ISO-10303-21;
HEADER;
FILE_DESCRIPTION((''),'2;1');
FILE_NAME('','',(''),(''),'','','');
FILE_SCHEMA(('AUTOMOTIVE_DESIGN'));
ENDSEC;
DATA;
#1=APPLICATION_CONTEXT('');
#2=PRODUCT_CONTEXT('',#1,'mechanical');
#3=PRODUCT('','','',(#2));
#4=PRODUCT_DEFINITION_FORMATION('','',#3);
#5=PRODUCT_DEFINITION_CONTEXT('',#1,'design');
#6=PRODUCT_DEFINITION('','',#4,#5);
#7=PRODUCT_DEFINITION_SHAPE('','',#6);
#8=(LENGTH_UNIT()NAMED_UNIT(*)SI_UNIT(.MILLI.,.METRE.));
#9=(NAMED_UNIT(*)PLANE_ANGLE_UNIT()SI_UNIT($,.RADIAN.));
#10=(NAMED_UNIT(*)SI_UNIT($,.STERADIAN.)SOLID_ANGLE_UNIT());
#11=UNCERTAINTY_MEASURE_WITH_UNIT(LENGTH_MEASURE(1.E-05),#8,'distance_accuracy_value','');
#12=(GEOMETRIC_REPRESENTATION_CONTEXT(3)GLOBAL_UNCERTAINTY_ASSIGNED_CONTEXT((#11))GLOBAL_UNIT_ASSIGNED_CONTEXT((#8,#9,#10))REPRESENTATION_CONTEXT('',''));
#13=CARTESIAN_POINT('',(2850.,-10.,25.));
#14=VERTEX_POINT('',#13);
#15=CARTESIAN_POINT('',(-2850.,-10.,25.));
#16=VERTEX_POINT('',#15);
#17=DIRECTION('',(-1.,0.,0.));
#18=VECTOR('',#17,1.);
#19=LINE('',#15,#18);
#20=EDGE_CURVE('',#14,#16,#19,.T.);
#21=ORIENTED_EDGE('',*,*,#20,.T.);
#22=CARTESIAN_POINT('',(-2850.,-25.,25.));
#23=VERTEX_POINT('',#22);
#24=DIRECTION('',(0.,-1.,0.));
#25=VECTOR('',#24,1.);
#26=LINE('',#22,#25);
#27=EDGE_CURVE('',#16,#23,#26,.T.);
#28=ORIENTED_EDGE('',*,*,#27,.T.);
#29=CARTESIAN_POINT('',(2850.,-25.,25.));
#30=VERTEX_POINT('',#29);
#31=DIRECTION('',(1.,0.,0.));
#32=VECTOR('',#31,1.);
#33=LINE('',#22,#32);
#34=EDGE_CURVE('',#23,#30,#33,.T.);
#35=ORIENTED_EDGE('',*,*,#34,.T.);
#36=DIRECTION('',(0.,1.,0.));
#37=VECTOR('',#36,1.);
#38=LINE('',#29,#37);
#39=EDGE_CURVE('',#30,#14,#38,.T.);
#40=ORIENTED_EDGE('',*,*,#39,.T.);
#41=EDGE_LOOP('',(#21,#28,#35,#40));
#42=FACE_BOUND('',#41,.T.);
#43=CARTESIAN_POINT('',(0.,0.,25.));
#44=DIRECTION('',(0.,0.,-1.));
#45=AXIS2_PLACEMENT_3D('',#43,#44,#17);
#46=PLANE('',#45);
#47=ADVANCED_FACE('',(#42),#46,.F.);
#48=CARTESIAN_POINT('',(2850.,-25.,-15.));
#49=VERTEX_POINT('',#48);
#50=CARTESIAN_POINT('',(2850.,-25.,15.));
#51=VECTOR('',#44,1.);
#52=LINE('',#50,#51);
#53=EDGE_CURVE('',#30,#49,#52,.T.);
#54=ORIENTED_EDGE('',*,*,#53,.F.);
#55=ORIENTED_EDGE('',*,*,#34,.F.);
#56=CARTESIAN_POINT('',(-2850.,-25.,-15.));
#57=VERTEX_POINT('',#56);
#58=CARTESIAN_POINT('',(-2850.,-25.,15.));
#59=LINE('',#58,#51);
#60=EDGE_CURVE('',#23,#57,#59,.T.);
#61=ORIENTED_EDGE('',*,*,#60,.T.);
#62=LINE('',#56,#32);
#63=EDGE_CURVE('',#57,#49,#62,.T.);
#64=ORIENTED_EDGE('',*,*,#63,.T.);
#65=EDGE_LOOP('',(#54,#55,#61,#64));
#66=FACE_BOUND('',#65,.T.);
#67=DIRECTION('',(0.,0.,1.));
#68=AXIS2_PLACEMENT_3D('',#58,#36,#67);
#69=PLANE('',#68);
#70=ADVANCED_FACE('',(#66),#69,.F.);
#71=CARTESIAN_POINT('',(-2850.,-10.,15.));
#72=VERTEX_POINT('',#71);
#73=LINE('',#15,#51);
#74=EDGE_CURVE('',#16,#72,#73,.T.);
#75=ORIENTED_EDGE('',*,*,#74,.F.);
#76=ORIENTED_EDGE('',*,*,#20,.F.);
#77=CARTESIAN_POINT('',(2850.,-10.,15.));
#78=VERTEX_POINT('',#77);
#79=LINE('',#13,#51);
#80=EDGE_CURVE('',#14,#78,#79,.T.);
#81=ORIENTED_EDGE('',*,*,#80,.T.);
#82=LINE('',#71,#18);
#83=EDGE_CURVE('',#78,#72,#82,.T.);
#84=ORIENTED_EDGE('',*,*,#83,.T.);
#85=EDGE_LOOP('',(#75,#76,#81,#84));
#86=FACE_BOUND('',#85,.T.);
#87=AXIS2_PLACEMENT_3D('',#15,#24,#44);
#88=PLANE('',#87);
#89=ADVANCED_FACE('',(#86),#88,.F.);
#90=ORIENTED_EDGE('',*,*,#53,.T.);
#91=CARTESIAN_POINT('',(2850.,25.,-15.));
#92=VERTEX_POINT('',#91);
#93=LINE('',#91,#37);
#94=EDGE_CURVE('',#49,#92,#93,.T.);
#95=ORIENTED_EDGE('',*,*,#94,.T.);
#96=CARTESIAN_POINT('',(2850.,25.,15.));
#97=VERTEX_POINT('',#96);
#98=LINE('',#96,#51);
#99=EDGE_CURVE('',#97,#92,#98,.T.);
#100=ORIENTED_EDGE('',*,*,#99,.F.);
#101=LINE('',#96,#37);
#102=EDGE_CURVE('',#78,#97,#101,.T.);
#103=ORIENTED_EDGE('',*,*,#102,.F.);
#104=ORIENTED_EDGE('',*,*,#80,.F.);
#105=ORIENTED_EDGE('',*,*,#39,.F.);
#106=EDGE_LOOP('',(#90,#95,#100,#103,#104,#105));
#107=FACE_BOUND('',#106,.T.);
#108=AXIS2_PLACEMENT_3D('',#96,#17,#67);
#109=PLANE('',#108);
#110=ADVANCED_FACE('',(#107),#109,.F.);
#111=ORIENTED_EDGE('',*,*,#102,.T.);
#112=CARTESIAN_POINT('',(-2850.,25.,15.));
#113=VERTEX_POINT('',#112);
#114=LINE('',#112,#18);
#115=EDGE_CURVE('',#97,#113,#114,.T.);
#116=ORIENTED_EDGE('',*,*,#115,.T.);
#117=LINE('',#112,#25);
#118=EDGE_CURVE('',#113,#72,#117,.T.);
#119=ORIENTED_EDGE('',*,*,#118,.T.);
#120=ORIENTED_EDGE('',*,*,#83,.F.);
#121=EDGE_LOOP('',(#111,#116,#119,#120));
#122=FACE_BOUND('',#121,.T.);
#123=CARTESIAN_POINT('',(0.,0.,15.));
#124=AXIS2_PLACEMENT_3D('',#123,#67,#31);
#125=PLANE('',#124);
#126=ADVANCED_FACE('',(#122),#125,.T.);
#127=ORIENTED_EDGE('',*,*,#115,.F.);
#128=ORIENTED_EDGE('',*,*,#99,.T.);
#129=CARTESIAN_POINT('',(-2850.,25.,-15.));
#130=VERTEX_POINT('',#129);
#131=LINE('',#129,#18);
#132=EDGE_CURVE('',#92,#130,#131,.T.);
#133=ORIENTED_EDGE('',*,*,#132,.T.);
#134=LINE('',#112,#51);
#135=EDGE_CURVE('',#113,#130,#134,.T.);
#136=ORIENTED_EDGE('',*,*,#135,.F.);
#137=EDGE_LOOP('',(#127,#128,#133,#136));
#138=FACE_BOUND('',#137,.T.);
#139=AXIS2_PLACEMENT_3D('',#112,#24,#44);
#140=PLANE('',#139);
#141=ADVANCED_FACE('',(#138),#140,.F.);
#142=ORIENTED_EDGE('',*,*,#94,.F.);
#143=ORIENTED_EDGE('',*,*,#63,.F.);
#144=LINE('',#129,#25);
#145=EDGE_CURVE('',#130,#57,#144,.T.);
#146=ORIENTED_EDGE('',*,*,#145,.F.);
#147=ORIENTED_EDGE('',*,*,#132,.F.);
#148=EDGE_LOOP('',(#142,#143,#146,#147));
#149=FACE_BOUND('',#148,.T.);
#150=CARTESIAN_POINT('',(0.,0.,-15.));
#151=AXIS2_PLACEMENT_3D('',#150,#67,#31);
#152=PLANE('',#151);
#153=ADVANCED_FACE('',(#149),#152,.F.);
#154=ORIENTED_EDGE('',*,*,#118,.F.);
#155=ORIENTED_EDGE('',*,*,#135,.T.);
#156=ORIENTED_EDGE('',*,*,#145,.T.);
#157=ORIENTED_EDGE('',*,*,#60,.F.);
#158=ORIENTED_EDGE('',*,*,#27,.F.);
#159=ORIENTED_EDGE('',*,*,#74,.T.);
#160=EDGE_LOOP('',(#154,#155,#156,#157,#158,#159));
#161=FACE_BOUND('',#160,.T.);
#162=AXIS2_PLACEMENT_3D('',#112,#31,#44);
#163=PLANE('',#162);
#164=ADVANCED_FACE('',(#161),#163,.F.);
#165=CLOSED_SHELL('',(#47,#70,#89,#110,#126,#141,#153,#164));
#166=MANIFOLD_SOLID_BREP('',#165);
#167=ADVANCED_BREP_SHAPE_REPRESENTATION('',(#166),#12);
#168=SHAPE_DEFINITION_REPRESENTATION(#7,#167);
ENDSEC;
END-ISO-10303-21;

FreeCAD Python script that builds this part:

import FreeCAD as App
import Part
import Sketcher
from FreeCAD import Vector
Q = App.Units.Quantity

doc = App.newDocument("Part")
body = doc.addObject("PartDesign::Body", "Body")

# Sketch on XY plane
sketch1 = doc.addObject("Sketcher::SketchObject", "Sketch")
body.addObject(sketch1)
sketch1.AttachmentSupport = (doc.XY_Plane, [""])
sketch1.MapMode = "FlatFace"
sketch1.addGeometry(Part.LineSegment(Vector(-2850, 25, 0), Vector(-2850, -25, 0)), False)
sketch1.addGeometry(Part.LineSegment(Vector(-2850, -25, 0), Vector(2850, -25, 0)), False)
sketch1.addGeometry(Part.LineSegment(Vector(2850, -25, 0), Vector(2850, 25, 0)), False)
sketch1.addGeometry(Part.LineSegment(Vector(2850, 25, 0), Vector(-2850, 25, 0)), False)
sketch1.addConstraint(Sketcher.Constraint("Coincident", 0, 2, 1, 1))
sketch1.addConstraint(Sketcher.Constraint("Coincident", 1, 2, 2, 1))
sketch1.addConstraint(Sketcher.Constraint("Coincident", 2, 2, 3, 1))
sketch1.addConstraint(Sketcher.Constraint("Coincident", 3, 2, 0, 1))
sketch1.addConstraint(Sketcher.Constraint("Vertical", 0))
sketch1.addConstraint(Sketcher.Constraint("Horizontal", 1))
sketch1.addConstraint(Sketcher.Constraint("Vertical", 2))
sketch1.addConstraint(Sketcher.Constraint("Horizontal", 3))
sketch1.addConstraint(Sketcher.Constraint("Symmetric", 0, 2, 2, 2, -1, 1))
sketch1.addConstraint(Sketcher.Constraint("DistanceX", 1, 1, 1, 2, Q("5700 mm")))
sketch1.addConstraint(Sketcher.Constraint("DistanceY", 0, 2, 0, 1, Q("50 mm")))
pad1 = doc.addObject("PartDesign::Pad", "Pad")
body.addObject(pad1)
pad1.Profile = sketch1
pad1.Length = 30
pad1.Midplane = True

# Sketch on XY plane
sketch2 = doc.addObject("Sketcher::SketchObject", "Sketch001")
body.addObject(sketch2)
sketch2.AttachmentSupport = (doc.XY_Plane, [""])
sketch2.MapMode = "FlatFace"
sketch2.AttachmentOffset = App.Placement(Vector(0, 0, 15), App.Rotation())
sketch2.addGeometry(Part.LineSegment(Vector(-2850, -10, 0), Vector(-2850, -25, 0)), False)
sketch2.addGeometry(Part.LineSegment(Vector(-2850, -25, 0), Vector(2850, -25, 0)), False)
sketch2.addGeometry(Part.LineSegment(Vector(2850, -25, 0), Vector(2850, -10, 0)), False)
sketch2.addGeometry(Part.LineSegment(Vector(2850, -10, 0), Vector(-2850, -10, 0)), False)
sketch2.addConstraint(Sketcher.Constraint("Coincident", 0, 2, 1, 1))
sketch2.addConstraint(Sketcher.Constraint("Coincident", 1, 2, 2, 1))
sketch2.addConstraint(Sketcher.Constraint("Coincident", 2, 2, 3, 1))
sketch2.addConstraint(Sketcher.Constraint("Coincident", 3, 2, 0, 1))
sketch2.addConstraint(Sketcher.Constraint("Vertical", 0))
sketch2.addConstraint(Sketcher.Constraint("Horizontal", 1))
sketch2.addConstraint(Sketcher.Constraint("Vertical", 2))
sketch2.addConstraint(Sketcher.Constraint("Horizontal", 3))
sketch2.addConstraint(Sketcher.Constraint("DistanceX", 1, 1, 1, 2, Q("5700 mm")))
sketch2.addConstraint(Sketcher.Constraint("DistanceY", 0, 2, 0, 1, Q("15 mm")))
sketch2.addConstraint(Sketcher.Constraint("DistanceX", 0, 2, -1, 1, Q("2850 mm")))
sketch2.addConstraint(Sketcher.Constraint("DistanceY", 0, 2, -1, 1, Q("25 mm")))
pad2 = doc.addObject("PartDesign::Pad", "Pad001")
body.addObject(pad2)
pad2.Profile = sketch2
pad2.Length = 10

doc.recompute()
